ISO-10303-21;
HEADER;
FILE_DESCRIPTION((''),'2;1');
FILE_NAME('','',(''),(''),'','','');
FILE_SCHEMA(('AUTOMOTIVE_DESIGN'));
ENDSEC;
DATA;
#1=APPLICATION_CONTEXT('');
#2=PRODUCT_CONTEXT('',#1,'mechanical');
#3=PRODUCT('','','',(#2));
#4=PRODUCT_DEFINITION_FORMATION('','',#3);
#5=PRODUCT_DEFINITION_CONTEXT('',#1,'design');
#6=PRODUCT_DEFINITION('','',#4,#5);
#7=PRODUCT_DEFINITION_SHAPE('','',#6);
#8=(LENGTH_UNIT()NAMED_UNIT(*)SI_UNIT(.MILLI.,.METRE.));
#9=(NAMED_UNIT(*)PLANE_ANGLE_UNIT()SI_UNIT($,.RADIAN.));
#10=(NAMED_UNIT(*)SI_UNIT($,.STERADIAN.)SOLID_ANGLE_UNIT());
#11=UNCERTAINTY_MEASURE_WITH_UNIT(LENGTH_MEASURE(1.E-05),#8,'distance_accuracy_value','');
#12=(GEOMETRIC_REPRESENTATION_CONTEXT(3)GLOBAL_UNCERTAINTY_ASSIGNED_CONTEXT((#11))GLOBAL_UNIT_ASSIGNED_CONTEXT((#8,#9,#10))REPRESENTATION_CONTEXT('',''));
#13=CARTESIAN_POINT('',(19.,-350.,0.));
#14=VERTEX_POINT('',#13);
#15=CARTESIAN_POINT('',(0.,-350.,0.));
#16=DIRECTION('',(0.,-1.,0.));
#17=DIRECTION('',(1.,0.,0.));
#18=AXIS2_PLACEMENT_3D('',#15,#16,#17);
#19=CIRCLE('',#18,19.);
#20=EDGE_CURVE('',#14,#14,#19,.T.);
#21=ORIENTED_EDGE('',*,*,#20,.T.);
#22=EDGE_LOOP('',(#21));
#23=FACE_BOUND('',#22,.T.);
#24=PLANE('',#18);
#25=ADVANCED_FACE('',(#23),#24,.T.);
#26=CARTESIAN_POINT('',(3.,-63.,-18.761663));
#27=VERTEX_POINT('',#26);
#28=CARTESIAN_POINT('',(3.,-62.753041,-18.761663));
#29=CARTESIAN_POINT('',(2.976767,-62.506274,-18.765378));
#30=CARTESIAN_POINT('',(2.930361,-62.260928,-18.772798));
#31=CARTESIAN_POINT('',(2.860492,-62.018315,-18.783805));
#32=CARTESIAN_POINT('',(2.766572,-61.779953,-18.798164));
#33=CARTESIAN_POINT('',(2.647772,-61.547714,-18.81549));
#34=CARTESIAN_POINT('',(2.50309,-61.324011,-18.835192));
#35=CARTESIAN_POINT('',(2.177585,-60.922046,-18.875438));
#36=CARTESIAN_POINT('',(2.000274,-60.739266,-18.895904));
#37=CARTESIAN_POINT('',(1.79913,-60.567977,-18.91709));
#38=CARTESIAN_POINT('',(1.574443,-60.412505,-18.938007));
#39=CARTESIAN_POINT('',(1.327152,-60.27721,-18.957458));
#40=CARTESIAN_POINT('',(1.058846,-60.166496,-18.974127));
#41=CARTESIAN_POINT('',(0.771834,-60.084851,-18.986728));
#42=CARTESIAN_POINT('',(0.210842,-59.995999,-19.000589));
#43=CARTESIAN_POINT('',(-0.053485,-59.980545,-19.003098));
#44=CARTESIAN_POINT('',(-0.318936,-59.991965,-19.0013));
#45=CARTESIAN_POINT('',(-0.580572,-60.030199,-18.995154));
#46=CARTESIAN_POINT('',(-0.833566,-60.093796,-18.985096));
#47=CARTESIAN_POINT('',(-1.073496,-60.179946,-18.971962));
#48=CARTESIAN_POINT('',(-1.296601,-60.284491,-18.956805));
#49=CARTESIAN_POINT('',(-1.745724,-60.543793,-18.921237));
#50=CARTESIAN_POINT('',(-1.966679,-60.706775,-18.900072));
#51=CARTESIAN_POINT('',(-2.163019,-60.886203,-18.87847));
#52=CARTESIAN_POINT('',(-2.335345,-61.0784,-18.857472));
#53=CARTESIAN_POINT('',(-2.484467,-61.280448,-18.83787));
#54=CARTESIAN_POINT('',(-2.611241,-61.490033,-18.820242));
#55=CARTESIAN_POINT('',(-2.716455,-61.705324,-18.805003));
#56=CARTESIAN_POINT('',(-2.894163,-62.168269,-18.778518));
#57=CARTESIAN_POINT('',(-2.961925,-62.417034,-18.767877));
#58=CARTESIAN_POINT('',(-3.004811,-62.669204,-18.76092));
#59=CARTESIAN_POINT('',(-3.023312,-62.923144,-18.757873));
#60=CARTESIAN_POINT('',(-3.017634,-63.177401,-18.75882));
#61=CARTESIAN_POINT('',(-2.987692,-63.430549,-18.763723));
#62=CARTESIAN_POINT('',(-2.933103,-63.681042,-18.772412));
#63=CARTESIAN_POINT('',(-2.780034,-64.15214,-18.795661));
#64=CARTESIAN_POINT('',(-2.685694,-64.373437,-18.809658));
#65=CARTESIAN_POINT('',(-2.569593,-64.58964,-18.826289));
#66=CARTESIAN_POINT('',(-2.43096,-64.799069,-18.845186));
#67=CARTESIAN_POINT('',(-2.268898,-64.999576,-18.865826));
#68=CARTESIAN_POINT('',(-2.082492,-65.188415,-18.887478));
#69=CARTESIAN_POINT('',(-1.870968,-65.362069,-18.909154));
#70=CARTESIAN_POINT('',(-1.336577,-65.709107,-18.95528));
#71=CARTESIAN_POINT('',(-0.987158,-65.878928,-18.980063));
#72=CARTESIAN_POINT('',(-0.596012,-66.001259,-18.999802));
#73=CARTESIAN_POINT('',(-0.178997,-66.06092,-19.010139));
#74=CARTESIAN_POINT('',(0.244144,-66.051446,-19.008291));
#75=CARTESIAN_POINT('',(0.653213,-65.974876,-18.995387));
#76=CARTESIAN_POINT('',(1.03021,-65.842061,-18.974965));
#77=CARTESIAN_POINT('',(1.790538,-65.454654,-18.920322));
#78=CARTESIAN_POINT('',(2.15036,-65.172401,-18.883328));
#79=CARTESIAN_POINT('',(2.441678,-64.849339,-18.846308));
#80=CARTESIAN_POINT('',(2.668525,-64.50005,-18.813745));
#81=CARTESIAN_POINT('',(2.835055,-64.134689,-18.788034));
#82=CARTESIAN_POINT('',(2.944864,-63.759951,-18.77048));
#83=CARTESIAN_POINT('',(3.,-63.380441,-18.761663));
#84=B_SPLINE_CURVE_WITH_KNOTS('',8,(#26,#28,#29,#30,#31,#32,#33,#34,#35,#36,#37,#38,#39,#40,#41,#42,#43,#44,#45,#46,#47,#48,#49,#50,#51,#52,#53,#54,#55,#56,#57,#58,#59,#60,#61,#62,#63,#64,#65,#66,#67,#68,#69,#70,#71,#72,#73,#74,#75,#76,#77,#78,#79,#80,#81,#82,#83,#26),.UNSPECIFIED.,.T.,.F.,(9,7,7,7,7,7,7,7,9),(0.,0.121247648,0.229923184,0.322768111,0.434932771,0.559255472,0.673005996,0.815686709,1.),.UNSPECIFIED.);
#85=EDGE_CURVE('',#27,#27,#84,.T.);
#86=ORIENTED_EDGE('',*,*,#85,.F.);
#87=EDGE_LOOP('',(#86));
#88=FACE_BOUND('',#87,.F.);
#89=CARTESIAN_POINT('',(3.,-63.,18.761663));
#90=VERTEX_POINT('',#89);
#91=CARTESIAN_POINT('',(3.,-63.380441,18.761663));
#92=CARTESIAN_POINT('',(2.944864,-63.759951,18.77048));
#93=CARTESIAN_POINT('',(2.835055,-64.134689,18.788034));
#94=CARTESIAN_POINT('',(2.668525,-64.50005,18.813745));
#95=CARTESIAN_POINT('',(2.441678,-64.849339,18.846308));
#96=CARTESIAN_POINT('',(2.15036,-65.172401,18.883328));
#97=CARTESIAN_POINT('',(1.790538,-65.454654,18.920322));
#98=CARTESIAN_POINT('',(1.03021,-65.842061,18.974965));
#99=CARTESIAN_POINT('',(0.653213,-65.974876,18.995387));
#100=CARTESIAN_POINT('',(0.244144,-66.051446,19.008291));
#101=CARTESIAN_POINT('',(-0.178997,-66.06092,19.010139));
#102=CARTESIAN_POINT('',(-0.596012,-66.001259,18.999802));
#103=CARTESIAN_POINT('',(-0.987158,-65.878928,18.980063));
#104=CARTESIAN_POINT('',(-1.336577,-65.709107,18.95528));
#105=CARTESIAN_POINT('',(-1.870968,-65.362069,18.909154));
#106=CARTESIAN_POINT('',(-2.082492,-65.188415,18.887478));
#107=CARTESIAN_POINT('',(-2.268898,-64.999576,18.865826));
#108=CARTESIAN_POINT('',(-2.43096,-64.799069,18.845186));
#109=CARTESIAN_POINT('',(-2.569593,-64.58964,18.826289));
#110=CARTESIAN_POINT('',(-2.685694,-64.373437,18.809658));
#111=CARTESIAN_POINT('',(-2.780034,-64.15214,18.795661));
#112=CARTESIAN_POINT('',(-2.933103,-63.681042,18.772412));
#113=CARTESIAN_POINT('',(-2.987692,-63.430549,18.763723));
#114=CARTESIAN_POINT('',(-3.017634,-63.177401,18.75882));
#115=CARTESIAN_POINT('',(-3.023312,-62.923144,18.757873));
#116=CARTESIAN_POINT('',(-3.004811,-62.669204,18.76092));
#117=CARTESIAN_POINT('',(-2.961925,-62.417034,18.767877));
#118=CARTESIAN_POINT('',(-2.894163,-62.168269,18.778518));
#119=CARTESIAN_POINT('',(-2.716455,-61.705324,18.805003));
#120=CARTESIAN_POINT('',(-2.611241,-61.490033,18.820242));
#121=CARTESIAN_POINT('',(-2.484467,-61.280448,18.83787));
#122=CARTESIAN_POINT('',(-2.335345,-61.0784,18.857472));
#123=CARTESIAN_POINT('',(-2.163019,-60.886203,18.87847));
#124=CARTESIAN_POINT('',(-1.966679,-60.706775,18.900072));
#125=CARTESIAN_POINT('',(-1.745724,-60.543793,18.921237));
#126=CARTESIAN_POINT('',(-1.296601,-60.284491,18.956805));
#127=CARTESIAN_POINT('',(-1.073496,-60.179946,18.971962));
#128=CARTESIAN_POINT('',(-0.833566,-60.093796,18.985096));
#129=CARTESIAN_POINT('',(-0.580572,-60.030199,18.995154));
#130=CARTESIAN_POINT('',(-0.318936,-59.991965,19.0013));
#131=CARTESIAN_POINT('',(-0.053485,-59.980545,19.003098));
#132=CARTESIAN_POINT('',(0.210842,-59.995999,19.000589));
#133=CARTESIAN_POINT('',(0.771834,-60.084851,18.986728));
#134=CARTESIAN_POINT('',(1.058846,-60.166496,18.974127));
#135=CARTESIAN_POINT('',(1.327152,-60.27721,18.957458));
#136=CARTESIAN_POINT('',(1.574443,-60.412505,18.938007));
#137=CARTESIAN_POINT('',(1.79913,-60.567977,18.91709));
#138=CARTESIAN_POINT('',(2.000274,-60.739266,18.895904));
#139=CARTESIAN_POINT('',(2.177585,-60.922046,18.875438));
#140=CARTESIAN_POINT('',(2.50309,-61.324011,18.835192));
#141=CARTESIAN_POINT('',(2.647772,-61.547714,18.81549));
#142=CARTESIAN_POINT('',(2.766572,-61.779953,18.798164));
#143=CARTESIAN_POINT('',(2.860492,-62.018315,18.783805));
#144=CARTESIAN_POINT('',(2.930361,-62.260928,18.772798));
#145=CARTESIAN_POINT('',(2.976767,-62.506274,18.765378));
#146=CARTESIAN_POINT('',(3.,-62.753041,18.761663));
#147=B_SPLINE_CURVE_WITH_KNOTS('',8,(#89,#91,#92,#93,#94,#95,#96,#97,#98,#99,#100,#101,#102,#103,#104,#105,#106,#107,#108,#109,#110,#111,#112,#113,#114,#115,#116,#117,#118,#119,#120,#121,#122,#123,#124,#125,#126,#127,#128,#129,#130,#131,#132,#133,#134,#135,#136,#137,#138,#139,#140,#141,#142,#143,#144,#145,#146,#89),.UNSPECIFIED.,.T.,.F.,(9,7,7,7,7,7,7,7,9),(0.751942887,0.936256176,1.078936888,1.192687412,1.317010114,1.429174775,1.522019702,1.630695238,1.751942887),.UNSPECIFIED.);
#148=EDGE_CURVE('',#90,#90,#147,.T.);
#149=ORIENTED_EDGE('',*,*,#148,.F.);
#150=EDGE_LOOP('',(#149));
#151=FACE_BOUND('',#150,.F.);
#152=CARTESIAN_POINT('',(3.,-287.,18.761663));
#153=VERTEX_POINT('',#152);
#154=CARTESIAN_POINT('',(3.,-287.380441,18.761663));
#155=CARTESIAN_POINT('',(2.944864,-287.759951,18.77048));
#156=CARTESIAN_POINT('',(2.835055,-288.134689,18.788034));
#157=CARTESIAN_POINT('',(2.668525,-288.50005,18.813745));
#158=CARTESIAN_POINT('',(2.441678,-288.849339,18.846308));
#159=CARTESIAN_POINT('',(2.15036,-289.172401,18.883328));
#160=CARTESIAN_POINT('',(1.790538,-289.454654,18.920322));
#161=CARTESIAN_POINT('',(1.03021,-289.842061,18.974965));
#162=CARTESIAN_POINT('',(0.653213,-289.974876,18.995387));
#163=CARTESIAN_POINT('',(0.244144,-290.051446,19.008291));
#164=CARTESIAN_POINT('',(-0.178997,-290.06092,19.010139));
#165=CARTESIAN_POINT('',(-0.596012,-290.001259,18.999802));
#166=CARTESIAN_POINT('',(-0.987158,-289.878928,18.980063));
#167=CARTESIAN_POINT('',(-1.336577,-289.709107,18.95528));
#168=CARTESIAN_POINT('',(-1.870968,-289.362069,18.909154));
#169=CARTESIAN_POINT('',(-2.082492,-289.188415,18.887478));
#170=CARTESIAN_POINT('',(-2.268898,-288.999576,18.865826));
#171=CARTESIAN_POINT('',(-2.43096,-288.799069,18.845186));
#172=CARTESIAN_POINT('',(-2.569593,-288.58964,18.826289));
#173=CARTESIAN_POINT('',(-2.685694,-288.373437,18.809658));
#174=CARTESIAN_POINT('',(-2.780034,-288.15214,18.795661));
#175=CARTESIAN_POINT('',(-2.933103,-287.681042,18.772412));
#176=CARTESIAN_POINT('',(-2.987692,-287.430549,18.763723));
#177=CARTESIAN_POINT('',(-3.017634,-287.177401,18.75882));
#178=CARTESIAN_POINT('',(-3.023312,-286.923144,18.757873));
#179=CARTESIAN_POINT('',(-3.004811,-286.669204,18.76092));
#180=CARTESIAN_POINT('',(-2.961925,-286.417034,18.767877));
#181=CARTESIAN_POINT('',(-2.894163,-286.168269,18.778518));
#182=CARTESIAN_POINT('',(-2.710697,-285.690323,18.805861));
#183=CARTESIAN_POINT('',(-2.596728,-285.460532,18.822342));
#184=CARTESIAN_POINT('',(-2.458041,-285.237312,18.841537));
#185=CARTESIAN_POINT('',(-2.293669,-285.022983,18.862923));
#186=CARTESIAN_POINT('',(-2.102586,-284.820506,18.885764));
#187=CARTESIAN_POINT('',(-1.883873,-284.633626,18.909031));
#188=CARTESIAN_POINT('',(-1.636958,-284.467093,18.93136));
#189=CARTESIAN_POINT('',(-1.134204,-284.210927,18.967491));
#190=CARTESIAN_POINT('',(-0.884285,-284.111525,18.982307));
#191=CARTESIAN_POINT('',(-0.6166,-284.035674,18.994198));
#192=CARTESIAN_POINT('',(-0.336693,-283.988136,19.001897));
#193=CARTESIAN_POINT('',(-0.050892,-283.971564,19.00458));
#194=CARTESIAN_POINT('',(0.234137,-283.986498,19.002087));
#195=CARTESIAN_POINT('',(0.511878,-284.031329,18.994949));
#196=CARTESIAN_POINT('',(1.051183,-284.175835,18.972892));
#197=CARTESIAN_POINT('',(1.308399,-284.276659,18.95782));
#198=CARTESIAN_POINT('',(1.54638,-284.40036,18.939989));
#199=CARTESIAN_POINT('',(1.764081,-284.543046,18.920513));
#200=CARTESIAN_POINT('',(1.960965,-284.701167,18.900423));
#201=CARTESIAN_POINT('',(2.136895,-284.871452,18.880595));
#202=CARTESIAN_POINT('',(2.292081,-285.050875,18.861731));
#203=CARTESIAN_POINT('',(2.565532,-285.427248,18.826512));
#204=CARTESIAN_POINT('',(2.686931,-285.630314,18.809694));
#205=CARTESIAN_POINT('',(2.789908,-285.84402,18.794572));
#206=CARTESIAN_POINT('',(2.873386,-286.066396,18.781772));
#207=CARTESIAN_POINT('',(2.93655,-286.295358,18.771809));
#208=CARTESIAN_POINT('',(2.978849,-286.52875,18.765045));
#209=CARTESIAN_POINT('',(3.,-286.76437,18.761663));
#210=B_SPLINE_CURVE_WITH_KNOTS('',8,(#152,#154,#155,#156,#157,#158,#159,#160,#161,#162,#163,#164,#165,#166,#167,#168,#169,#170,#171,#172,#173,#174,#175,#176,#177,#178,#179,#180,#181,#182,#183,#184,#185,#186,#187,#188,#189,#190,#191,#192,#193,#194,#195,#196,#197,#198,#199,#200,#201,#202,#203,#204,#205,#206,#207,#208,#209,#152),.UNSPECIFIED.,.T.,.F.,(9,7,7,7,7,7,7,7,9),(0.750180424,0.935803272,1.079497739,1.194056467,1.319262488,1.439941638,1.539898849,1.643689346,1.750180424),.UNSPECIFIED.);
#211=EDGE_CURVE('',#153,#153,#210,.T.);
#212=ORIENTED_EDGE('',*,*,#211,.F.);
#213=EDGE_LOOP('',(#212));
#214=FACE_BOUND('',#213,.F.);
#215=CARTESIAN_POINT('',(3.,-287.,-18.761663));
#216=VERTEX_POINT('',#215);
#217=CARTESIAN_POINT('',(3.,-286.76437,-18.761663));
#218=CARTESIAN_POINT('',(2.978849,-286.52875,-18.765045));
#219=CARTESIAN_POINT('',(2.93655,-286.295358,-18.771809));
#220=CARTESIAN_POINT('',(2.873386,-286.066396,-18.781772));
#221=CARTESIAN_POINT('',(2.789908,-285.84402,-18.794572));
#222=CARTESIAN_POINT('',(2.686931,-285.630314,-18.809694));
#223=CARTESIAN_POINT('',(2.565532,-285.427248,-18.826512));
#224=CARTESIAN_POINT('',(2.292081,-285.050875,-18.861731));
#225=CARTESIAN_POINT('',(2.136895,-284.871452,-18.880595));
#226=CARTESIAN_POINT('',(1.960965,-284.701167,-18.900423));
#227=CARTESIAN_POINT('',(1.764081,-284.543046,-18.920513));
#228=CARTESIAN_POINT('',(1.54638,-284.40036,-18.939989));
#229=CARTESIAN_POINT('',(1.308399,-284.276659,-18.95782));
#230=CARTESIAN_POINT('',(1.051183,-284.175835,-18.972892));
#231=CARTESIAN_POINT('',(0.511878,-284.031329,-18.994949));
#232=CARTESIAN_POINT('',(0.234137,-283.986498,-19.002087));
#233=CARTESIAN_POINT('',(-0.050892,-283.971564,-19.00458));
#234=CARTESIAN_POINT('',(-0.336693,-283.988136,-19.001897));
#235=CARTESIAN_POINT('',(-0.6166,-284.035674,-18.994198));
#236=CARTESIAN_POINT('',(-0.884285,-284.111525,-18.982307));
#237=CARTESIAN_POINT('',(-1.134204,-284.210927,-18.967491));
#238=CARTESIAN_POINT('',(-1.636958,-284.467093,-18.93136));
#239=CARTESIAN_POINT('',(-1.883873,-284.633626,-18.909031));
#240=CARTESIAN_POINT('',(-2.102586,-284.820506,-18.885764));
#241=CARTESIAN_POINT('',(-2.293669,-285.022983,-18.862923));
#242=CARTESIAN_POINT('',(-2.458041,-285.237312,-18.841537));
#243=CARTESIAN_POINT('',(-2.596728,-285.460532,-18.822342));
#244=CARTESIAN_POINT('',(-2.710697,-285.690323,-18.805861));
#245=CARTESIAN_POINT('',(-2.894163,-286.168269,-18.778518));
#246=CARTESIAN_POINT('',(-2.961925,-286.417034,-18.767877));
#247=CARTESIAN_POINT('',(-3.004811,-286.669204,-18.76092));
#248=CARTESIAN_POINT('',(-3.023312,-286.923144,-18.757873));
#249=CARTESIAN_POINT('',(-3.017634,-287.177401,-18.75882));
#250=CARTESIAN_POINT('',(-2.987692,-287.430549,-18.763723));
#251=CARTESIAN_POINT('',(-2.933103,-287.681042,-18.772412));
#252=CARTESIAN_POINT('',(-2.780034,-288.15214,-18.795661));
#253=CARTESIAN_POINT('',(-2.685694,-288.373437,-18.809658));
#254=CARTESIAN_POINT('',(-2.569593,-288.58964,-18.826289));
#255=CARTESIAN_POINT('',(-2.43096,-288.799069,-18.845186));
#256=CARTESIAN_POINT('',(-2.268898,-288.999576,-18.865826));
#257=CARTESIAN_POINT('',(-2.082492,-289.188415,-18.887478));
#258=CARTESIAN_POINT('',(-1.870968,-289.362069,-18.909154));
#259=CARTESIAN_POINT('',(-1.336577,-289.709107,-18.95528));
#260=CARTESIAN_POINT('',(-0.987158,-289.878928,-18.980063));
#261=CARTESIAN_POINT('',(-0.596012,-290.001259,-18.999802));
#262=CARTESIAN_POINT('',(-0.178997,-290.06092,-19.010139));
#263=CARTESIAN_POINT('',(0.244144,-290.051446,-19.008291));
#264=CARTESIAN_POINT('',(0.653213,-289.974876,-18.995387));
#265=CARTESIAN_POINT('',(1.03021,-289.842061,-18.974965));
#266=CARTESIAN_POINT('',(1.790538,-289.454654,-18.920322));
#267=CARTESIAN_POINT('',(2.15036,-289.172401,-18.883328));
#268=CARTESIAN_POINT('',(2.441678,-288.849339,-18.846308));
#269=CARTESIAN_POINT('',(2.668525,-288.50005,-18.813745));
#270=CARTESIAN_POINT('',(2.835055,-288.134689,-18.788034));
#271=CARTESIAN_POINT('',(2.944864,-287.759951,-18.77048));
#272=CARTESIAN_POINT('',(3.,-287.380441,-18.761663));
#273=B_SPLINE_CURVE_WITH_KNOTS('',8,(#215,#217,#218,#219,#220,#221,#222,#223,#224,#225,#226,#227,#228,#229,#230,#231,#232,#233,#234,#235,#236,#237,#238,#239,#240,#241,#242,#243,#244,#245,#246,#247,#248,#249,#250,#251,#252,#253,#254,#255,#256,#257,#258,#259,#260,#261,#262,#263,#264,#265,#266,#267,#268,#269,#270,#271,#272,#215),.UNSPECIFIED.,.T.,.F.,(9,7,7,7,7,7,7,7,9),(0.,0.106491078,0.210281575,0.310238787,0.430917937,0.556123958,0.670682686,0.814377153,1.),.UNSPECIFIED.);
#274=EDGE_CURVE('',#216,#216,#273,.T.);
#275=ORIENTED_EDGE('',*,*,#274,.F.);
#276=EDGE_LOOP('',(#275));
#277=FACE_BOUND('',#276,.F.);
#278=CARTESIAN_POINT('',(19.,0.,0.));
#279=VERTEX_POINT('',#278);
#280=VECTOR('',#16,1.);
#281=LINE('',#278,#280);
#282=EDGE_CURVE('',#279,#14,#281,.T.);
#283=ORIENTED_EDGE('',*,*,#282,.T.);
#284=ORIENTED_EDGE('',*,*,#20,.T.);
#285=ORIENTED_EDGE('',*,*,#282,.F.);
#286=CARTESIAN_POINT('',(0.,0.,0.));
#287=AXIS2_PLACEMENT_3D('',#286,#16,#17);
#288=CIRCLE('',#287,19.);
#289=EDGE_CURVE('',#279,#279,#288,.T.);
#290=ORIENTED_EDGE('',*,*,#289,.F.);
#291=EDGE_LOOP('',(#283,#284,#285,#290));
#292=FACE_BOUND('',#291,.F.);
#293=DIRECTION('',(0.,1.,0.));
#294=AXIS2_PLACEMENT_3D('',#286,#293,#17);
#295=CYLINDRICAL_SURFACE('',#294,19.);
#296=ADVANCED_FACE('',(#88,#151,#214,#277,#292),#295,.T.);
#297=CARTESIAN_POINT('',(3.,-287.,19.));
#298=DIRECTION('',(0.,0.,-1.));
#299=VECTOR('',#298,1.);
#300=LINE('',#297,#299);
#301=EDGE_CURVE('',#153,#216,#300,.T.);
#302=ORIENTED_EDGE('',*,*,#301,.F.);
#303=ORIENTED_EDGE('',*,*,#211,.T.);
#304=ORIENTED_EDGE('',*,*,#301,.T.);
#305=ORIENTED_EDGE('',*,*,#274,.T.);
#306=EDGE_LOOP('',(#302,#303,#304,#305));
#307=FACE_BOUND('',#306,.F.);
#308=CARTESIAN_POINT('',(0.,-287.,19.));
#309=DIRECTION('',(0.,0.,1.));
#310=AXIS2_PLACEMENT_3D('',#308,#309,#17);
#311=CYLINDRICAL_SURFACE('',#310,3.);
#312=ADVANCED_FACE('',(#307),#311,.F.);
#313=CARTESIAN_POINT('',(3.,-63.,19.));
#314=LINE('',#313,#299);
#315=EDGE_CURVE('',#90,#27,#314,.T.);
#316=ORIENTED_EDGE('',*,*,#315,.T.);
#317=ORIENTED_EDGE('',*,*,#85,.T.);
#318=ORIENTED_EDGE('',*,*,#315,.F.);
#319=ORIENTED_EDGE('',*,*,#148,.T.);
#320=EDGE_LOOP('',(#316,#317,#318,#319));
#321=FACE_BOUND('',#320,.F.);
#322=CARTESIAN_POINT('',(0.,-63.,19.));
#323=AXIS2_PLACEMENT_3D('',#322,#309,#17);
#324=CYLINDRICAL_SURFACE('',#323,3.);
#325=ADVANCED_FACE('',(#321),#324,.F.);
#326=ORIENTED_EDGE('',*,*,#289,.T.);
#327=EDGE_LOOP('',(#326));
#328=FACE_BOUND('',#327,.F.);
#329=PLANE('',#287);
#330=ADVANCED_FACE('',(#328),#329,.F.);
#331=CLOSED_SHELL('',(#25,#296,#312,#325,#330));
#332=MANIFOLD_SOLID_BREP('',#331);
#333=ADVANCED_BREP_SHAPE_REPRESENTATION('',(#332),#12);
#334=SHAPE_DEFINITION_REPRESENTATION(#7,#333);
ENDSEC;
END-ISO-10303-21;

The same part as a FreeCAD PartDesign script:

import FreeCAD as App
import Part
import Sketcher

V = App.Vector
Q = App.Units.Quantity

doc = App.newDocument("Part")
body = doc.addObject("PartDesign::Body", "Body")

# Sketch on XZ plane
sketch1 = body.newObject("Sketcher::SketchObject", "Sketch")
sketch1.AttachmentSupport = (doc.getObject("XZ_Plane"), [""])
sketch1.MapMode = "FlatFace"
sketch1.addGeometry(Part.Circle(V(0, 0, 0), V(0, 0, 1), 19), False)
sketch1.addConstraint([
    Sketcher.Constraint("Coincident", 0, 3, -1, 1),
    Sketcher.Constraint("Diameter", 0, Q("38 mm")),
])
pad1 = body.newObject("PartDesign::Pad", "Pad")
pad1.Profile = sketch1
pad1.Length = 350

# Sketch on XY plane
sketch2 = body.newObject("Sketcher::SketchObject", "Sketch001")
sketch2.AttachmentSupport = (doc.getObject("XY_Plane"), [""])
sketch2.MapMode = "FlatFace"
sketch2.AttachmentOffset = App.Placement(V(0, 0, 19), App.Rotation())
sketch2.addGeometry([
    Part.Circle(V(0, -63, 0), V(0, 0, 1), 3),
    Part.Circle(V(0, -287, 0), V(0, 0, 1), 3),
], False)
sketch2.addConstraint([
    Sketcher.Constraint("Equal", 0, 1),
    Sketcher.Constraint("PointOnObject", 0, 3, -2),
    Sketcher.Constraint("PointOnObject", 1, 3, -2),
    Sketcher.Constraint("Diameter", 0, Q("6 mm")),
    Sketcher.Constraint("DistanceY", 0, 3, -1, 1, Q("63 mm")),
    Sketcher.Constraint("DistanceY", 1, 3, -1, 1, Q("287 mm")),
])
pocket1 = body.newObject("PartDesign::Pocket", "Pocket")
pocket1.Profile = sketch2
pocket1.Type = "ThroughAll"

doc.recompute()
